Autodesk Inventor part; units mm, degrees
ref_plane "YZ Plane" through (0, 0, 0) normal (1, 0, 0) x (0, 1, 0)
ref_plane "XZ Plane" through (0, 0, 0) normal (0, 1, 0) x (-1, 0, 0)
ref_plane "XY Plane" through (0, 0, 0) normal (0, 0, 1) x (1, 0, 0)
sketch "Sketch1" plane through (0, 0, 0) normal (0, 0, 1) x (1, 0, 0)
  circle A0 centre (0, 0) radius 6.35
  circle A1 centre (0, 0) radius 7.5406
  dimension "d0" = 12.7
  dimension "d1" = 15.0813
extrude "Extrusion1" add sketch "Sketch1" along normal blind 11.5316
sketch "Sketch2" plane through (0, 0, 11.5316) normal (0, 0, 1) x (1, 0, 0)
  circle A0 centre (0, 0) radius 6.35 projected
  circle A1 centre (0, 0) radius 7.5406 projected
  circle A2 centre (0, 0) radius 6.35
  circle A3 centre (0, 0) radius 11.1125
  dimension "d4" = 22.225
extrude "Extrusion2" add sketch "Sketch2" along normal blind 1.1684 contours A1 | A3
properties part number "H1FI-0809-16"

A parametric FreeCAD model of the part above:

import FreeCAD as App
import Part
import Sketcher
Q = App.Units.Quantity

doc = App.newDocument("Part")
body = doc.addObject("PartDesign::Body", "Body")

# Sketch on XY plane
sketch1 = body.newObject("Sketcher::SketchObject", "Sketch")
sketch1.AttachmentSupport = (doc.getObject("XY_Plane"), [""])
sketch1.MapMode = "FlatFace"
sketch1.addGeometry(Part.Circle(App.Vector(0, 0, 0), App.Vector(0, 0, 1), 8), False)
sketch1.addGeometry(Part.Circle(App.Vector(0, 0, 0), App.Vector(0, 0, 1), 6), False)
sketch1.addConstraint(Sketcher.Constraint("Coincident", 0, 3, -1, 1))
sketch1.addConstraint(Sketcher.Constraint("Coincident", 1, 3, -1, 1))
sketch1.addConstraint(Sketcher.Constraint("Diameter", 1, Q("0.5 in")))
sketch1.addConstraint(Sketcher.Constraint("Diameter", 0, Q("0.593748 in")))
pad1 = body.newObject("PartDesign::Pad", "Pad")
pad1.Profile = sketch1
pad1.Length = Q("0.454 in")

# Sketch on XY plane
sketch2 = body.newObject("Sketcher::SketchObject", "Sketch001")
sketch2.AttachmentSupport = (doc.getObject("XY_Plane"), [""])
sketch2.MapMode = "FlatFace"
sketch2.AttachmentOffset = App.Placement(App.Vector(0, 0, 0.454 * 25.4), App.Rotation())
sketch2.addGeometry(Part.Circle(App.Vector(0, 0, 0), App.Vector(0, 0, 1), 11), False)
sketch2.addGeometry(Part.Circle(App.Vector(0, 0, 0), App.Vector(0, 0, 1), 6), False)
sketch2.addConstraint(Sketcher.Constraint("Coincident", 0, 3, -1, 1))
sketch2.addConstraint(Sketcher.Constraint("Coincident", 1, 3, -1, 1))
sketch2.addConstraint(Sketcher.Constraint("Diameter", 0, Q("0.875 in")))
sketch2.addConstraint(Sketcher.Constraint("Diameter", 1, Q("0.5 in")))
pad2 = body.newObject("PartDesign::Pad", "Pad001")
pad2.Profile = sketch2
pad2.Length = Q("0.046 in")

doc.recompute()
